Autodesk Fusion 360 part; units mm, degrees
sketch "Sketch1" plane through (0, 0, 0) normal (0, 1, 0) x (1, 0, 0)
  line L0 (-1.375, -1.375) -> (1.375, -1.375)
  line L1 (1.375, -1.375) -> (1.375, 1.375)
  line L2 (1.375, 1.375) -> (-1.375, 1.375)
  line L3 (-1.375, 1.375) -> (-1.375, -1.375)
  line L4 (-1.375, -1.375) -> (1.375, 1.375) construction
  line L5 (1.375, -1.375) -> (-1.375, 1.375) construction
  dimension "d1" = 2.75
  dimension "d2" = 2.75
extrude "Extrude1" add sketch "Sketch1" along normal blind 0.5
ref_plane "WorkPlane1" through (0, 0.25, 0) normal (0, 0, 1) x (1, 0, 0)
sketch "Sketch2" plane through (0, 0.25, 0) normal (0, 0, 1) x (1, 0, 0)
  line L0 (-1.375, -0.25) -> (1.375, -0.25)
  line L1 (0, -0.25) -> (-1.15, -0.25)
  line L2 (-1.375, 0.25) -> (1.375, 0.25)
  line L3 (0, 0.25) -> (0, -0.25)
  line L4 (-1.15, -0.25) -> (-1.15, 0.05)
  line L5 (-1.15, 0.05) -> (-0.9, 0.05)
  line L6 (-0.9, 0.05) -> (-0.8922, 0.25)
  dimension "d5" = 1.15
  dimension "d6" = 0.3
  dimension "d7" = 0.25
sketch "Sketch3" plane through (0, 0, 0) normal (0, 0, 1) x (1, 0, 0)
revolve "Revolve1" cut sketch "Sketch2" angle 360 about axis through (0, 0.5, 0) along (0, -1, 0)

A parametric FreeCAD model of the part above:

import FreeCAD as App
import Part
import Sketcher
Q = App.Units.Quantity


def add_polygon(sketch, points):
    """Adds a closed chain of lines whose ends are joined by coincident constraints."""
    first, n = sketch.GeometryCount, len(points)
    for a, b in zip(points, points[1:] + points[:1]):
        sketch.addGeometry(Part.LineSegment(App.Vector(*a, 0), App.Vector(*b, 0)), False)
    for i in range(n):
        sketch.addConstraint(Sketcher.Constraint("Coincident", first + i, 2, first + (i + 1) % n, 1))

doc = App.newDocument("Part")
params = doc.addObject("Spreadsheet::Sheet", "Params")
for row, (alias, value) in enumerate([
    ("sketch1_width", "2.75 mm"),
    ("pad1_length", "0.5 mm"),
    ("sketch2_height", "0.3 mm"),
    ("sketch2_width", "1.15 mm"),
    ("sketch2_width2", "0.25 mm"),
    ("sketch2_height2", "0.5 mm"),
    ("groove_angle", "360 deg"),
], start=1):
    params.set(f"A{row}", alias)
    params.set(f"B{row}", "=" + value)
    params.setAlias(f"B{row}", alias)

body = doc.addObject("PartDesign::Body", "Body")

# Sketch on XZ plane
sketch1 = body.newObject("Sketcher::SketchObject", "Sketch")
sketch1.AttachmentSupport = (doc.getObject("XZ_Plane"), [""])
sketch1.MapMode = "FlatFace"
add_polygon(sketch1, [(-1.4, -1.4), (-1.4, 1.4), (1.4, 1.4), (1.4, -1.4)])  # lines 0-3
sketch1.addConstraint(Sketcher.Constraint("Vertical", 0))
sketch1.addConstraint(Sketcher.Constraint("Horizontal", 1))
sketch1.addConstraint(Sketcher.Constraint("Vertical", 2))
sketch1.addConstraint(Sketcher.Constraint("Horizontal", 3))
sketch1.addConstraint(Sketcher.Constraint("Symmetric", 0, 2, 2, 2, -1, 1))
sketch1.addConstraint(Sketcher.Constraint("Equal", 3, 0))
sketch1.addConstraint(Sketcher.Constraint("DistanceX", 1, 1, 1, 2, Q("2.75 mm")))
sketch1.setExpression("Constraints[10]", "Params.sketch1_width")
pad1 = body.newObject("PartDesign::Pad", "Pad")
pad1.Profile = sketch1
pad1.setExpression("Length", "Params.pad1_length")
pad1.Reversed = True

# Sketch on XY plane
sketch2 = body.newObject("Sketcher::SketchObject", "Sketch001")
sketch2.AttachmentSupport = (doc.getObject("XY_Plane"), [""])
sketch2.MapMode = "FlatFace"
add_polygon(sketch2, [(-1.15, 0.3), (-1.15, 0), (0, 0), (0, 0.5), (-0.89, 0.5), (-0.9, 0.3)])  # lines 0-5
sketch2.addConstraint(Sketcher.Constraint("Vertical", 0))
sketch2.addConstraint(Sketcher.Constraint("Horizontal", 1))
sketch2.addConstraint(Sketcher.Constraint("Vertical", 2))
sketch2.addConstraint(Sketcher.Constraint("Horizontal", 3))
sketch2.addConstraint(Sketcher.Constraint("Horizontal", 5))
sketch2.addConstraint(Sketcher.Constraint("Coincident", 1, 2, -1, 1))
sketch2.addConstraint(Sketcher.Constraint("DistanceY", 0, 2, 0, 1, Q("0.3 mm")))
sketch2.addConstraint(Sketcher.Constraint("DistanceX", 1, 1, 1, 2, Q("1.15 mm")))
sketch2.addConstraint(Sketcher.Constraint("DistanceX", 5, 2, 5, 1, Q("0.25 mm")))
sketch2.addConstraint(Sketcher.Constraint("DistanceY", 2, 1, 2, 2, Q("0.5 mm")))
sketch2.addConstraint(Sketcher.Constraint("DistanceX", 3, 2, 3, 1, Q("0.8922 mm")))
sketch2.setExpression("Constraints[12]", "Params.sketch2_height")
sketch2.setExpression("Constraints[13]", "Params.sketch2_width")
sketch2.setExpression("Constraints[14]", "Params.sketch2_width2")
sketch2.setExpression("Constraints[15]", "Params.sketch2_height2")
groove = body.newObject("PartDesign::Groove", "Groove")
groove.Profile = sketch2
groove.ReferenceAxis = (sketch2, ["V_Axis"])
groove.setExpression("Angle", "Params.groove_angle")

doc.recompute()
